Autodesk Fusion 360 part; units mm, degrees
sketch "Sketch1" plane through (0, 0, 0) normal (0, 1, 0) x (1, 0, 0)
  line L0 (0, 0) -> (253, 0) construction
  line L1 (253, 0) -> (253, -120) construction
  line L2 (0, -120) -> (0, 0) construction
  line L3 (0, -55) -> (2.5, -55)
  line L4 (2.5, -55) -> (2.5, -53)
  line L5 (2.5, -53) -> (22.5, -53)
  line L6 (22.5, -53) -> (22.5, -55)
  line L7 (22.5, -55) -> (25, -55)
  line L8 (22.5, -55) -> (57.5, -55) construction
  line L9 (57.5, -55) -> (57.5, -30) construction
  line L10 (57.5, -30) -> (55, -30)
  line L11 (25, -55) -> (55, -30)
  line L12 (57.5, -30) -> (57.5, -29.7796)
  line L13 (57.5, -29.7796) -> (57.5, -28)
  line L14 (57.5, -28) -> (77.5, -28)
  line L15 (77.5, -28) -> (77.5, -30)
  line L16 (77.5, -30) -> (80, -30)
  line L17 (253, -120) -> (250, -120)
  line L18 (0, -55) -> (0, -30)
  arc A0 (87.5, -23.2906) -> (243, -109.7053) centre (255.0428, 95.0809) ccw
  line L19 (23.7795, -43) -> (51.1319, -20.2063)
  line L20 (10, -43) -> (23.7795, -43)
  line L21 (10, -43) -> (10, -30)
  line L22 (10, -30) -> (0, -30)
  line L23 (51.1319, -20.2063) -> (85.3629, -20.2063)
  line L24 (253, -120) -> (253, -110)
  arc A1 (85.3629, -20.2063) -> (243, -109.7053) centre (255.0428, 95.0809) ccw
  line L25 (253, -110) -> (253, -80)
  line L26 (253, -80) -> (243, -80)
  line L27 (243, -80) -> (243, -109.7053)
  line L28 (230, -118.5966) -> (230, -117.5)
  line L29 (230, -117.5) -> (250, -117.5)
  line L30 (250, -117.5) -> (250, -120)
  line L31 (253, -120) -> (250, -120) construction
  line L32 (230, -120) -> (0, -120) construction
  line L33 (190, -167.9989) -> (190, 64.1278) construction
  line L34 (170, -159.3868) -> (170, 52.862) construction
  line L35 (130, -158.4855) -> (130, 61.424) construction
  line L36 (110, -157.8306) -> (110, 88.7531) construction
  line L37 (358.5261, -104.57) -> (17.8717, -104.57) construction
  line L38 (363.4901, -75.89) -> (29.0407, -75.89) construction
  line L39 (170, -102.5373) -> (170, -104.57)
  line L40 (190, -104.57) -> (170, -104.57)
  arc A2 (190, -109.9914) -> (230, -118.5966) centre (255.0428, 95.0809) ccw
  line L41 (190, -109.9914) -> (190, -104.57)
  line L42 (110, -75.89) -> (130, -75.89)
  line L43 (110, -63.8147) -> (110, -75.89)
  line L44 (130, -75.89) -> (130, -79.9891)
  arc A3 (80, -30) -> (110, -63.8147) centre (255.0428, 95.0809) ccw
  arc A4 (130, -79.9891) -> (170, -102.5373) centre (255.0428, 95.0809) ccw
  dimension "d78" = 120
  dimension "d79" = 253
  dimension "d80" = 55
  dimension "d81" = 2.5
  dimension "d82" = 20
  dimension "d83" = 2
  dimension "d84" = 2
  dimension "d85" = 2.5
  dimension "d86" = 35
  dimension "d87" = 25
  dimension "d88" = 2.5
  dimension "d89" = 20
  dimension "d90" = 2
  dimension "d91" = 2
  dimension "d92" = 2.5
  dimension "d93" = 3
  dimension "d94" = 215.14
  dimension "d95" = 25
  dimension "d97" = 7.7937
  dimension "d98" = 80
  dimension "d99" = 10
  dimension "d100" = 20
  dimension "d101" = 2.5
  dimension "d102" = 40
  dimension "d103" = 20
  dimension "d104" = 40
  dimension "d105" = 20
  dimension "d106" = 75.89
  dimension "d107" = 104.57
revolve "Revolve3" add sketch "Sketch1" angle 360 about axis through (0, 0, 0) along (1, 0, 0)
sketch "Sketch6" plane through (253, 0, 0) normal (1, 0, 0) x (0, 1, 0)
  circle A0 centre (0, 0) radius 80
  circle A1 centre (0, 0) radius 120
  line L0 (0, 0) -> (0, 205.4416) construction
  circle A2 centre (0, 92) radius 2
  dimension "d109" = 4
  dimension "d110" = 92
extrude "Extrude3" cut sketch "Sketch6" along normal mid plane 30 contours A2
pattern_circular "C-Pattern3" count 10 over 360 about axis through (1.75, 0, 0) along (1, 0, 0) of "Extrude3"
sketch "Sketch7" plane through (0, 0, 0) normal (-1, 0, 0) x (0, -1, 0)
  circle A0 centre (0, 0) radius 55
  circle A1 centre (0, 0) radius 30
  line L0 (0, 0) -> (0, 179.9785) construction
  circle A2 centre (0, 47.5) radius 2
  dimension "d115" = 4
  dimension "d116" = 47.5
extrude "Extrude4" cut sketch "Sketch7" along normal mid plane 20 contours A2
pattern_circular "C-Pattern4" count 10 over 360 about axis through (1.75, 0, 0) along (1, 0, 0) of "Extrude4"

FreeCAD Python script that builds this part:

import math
import FreeCAD as App
import Part
import Sketcher

doc = App.newDocument("Part")
body = doc.addObject("PartDesign::Body", "Body")

# Sketch on XZ plane
sketch1 = body.newObject("Sketcher::SketchObject", "Sketch")
sketch1.AttachmentSupport = (doc.getObject("XZ_Plane"), [""])
sketch1.MapMode = "FlatFace"
sketch1.addGeometry(Part.LineSegment(App.Vector(0, 30, 0), App.Vector(0, 55, 0)), False)
sketch1.addGeometry(Part.LineSegment(App.Vector(0, 55, 0), App.Vector(2.5, 55, 0)), False)
sketch1.addGeometry(Part.LineSegment(App.Vector(2.5, 55, 0), App.Vector(2.5, 53, 0)), False)
sketch1.addGeometry(Part.LineSegment(App.Vector(2.5, 53, 0), App.Vector(22.5, 53, 0)), False)
sketch1.addGeometry(Part.LineSegment(App.Vector(22.5, 53, 0), App.Vector(22.5, 55, 0)), False)
sketch1.addGeometry(Part.LineSegment(App.Vector(22.5, 55, 0), App.Vector(25, 55, 0)), False)
sketch1.addGeometry(Part.LineSegment(App.Vector(25, 55, 0), App.Vector(55, 30, 0)), False)
sketch1.addGeometry(Part.LineSegment(App.Vector(55, 30, 0), App.Vector(57.5, 30, 0)), False)
sketch1.addGeometry(Part.LineSegment(App.Vector(57.5, 30, 0), App.Vector(57.5, 28, 0)), False)
sketch1.addGeometry(Part.LineSegment(App.Vector(57.5, 28, 0), App.Vector(77.5, 28, 0)), False)
sketch1.addGeometry(Part.LineSegment(App.Vector(77.5, 28, 0), App.Vector(77.5, 30, 0)), False)
sketch1.addGeometry(Part.LineSegment(App.Vector(77.5, 30, 0), App.Vector(80, 30, 0)), False)
sketch1.addGeometry(Part.ArcOfCircle(Part.Circle(App.Vector(255, -95.1, 0), App.Vector(0, 0, 1), 215.1), math.radians(132.39), math.radians(144.45)), False)
sketch1.addGeometry(Part.LineSegment(App.Vector(110, 63.8, 0), App.Vector(110, 75.9, 0)), False)
sketch1.addGeometry(Part.LineSegment(App.Vector(110, 75.9, 0), App.Vector(130, 75.9, 0)), False)
sketch1.addGeometry(Part.LineSegment(App.Vector(130, 75.9, 0), App.Vector(130, 80, 0)), False)
sketch1.addGeometry(Part.ArcOfCircle(Part.Circle(App.Vector(255, -95.1, 0), App.Vector(0, 0, 1), 215.1), math.radians(113.28), math.radians(125.54)), False)
sketch1.addGeometry(Part.LineSegment(App.Vector(170, 102.5, 0), App.Vector(170, 104.6, 0)), False)
sketch1.addGeometry(Part.LineSegment(App.Vector(170, 104.6, 0), App.Vector(190, 104.6, 0)), False)
sketch1.addGeometry(Part.LineSegment(App.Vector(190, 104.6, 0), App.Vector(190, 110, 0)), False)
sketch1.addGeometry(Part.ArcOfCircle(Part.Circle(App.Vector(255, -95.1, 0), App.Vector(0, 0, 1), 215.1), math.radians(96.68), math.radians(107.6)), False)
sketch1.addGeometry(Part.LineSegment(App.Vector(230, 118.6, 0), App.Vector(230, 117.5, 0)), False)
sketch1.addGeometry(Part.LineSegment(App.Vector(230, 117.5, 0), App.Vector(250, 117.5, 0)), False)
sketch1.addGeometry(Part.LineSegment(App.Vector(250, 117.5, 0), App.Vector(250, 120, 0)), False)
sketch1.addGeometry(Part.LineSegment(App.Vector(250, 120, 0), App.Vector(253, 120, 0)), False)
sketch1.addGeometry(Part.LineSegment(App.Vector(253, 120, 0), App.Vector(253, 80, 0)), False)
sketch1.addGeometry(Part.LineSegment(App.Vector(253, 80, 0), App.Vector(243, 80, 0)), False)
sketch1.addGeometry(Part.LineSegment(App.Vector(243, 80, 0), App.Vector(243, 109.7, 0)), False)
sketch1.addGeometry(Part.ArcOfCircle(Part.Circle(App.Vector(255, -95.1, 0), App.Vector(0, 0, 1), 205.1), math.radians(93), math.radians(145)), False)
sketch1.addGeometry(Part.ArcOfCircle(Part.Circle(App.Vector(255, -95.1, 0), App.Vector(0, 0, 1), 205.1), math.radians(144.76), math.radians(145.81)), False)
sketch1.addGeometry(Part.LineSegment(App.Vector(85.4, 20.2, 0), App.Vector(51.1, 20.2, 0)), False)
sketch1.addGeometry(Part.LineSegment(App.Vector(51.1, 20.2, 0), App.Vector(23.8, 43, 0)), False)
sketch1.addGeometry(Part.LineSegment(App.Vector(23.8, 43, 0), App.Vector(10, 43, 0)), False)
sketch1.addGeometry(Part.LineSegment(App.Vector(10, 43, 0), App.Vector(10, 30, 0)), False)
sketch1.addGeometry(Part.LineSegment(App.Vector(10, 30, 0), App.Vector(0, 30, 0)), False)
sketch1.addConstraint(Sketcher.Constraint("Coincident", 0, 2, 1, 1))
sketch1.addConstraint(Sketcher.Constraint("Coincident", 1, 2, 2, 1))
sketch1.addConstraint(Sketcher.Constraint("Coincident", 2, 2, 3, 1))
sketch1.addConstraint(Sketcher.Constraint("Coincident", 3, 2, 4, 1))
sketch1.addConstraint(Sketcher.Constraint("Coincident", 4, 2, 5, 1))
sketch1.addConstraint(Sketcher.Constraint("Coincident", 5, 2, 6, 1))
sketch1.addConstraint(Sketcher.Constraint("Coincident", 6, 2, 7, 1))
sketch1.addConstraint(Sketcher.Constraint("Coincident", 7, 2, 8, 1))
sketch1.addConstraint(Sketcher.Constraint("Coincident", 8, 2, 9, 1))
sketch1.addConstraint(Sketcher.Constraint("Coincident", 9, 2, 10, 1))
sketch1.addConstraint(Sketcher.Constraint("Coincident", 10, 2, 11, 1))
sketch1.addConstraint(Sketcher.Constraint("Coincident", 11, 2, 12, 2))
sketch1.addConstraint(Sketcher.Constraint("Coincident", 12, 1, 13, 1))
sketch1.addConstraint(Sketcher.Constraint("Coincident", 13, 2, 14, 1))
sketch1.addConstraint(Sketcher.Constraint("Coincident", 14, 2, 15, 1))
sketch1.addConstraint(Sketcher.Constraint("Coincident", 15, 2, 16, 2))
sketch1.addConstraint(Sketcher.Constraint("Coincident", 16, 1, 17, 1))
sketch1.addConstraint(Sketcher.Constraint("Coincident", 17, 2, 18, 1))
sketch1.addConstraint(Sketcher.Constraint("Coincident", 18, 2, 19, 1))
sketch1.addConstraint(Sketcher.Constraint("Coincident", 19, 2, 20, 2))
sketch1.addConstraint(Sketcher.Constraint("Coincident", 20, 1, 21, 1))
sketch1.addConstraint(Sketcher.Constraint("Coincident", 21, 2, 22, 1))
sketch1.addConstraint(Sketcher.Constraint("Coincident", 22, 2, 23, 1))
sketch1.addConstraint(Sketcher.Constraint("Coincident", 23, 2, 24, 1))
sketch1.addConstraint(Sketcher.Constraint("Coincident", 24, 2, 25, 1))
sketch1.addConstraint(Sketcher.Constraint("Coincident", 25, 2, 26, 1))
sketch1.addConstraint(Sketcher.Constraint("Coincident", 26, 2, 27, 1))
sketch1.addConstraint(Sketcher.Constraint("Coincident", 27, 2, 28, 1))
sketch1.addConstraint(Sketcher.Constraint("Tangent", 28, 2, 29, 1))
sketch1.addConstraint(Sketcher.Constraint("Coincident", 29, 2, 30, 1))
sketch1.addConstraint(Sketcher.Constraint("Coincident", 30, 2, 31, 1))
sketch1.addConstraint(Sketcher.Constraint("Coincident", 31, 2, 32, 1))
sketch1.addConstraint(Sketcher.Constraint("Coincident", 32, 2, 33, 1))
sketch1.addConstraint(Sketcher.Constraint("Coincident", 33, 2, 34, 1))
sketch1.addConstraint(Sketcher.Constraint("Coincident", 34, 2, 0, 1))
sketch1.addConstraint(Sketcher.Constraint("Vertical", 0))
sketch1.addConstraint(Sketcher.Constraint("Horizontal", 1))
sketch1.addConstraint(Sketcher.Constraint("Vertical", 2))
sketch1.addConstraint(Sketcher.Constraint("Horizontal", 3))
sketch1.addConstraint(Sketcher.Constraint("Vertical", 4))
sketch1.addConstraint(Sketcher.Constraint("Horizontal", 5))
sketch1.addConstraint(Sketcher.Constraint("Horizontal", 7))
sketch1.addConstraint(Sketcher.Constraint("Vertical", 8))
sketch1.addConstraint(Sketcher.Constraint("Horizontal", 9))
sketch1.addConstraint(Sketcher.Constraint("Vertical", 10))
sketch1.addConstraint(Sketcher.Constraint("Horizontal", 11))
sketch1.addConstraint(Sketcher.Constraint("Vertical", 13))
sketch1.addConstraint(Sketcher.Constraint("Horizontal", 14))
sketch1.addConstraint(Sketcher.Constraint("Vertical", 15))
sketch1.addConstraint(Sketcher.Constraint("Vertical", 17))
sketch1.addConstraint(Sketcher.Constraint("Horizontal", 18))
sketch1.addConstraint(Sketcher.Constraint("Vertical", 19))
sketch1.addConstraint(Sketcher.Constraint("Vertical", 21))
sketch1.addConstraint(Sketcher.Constraint("Horizontal", 22))
sketch1.addConstraint(Sketcher.Constraint("Vertical", 23))
sketch1.addConstraint(Sketcher.Constraint("Horizontal", 24))
sketch1.addConstraint(Sketcher.Constraint("Vertical", 25))
sketch1.addConstraint(Sketcher.Constraint("Horizontal", 26))
sketch1.addConstraint(Sketcher.Constraint("Vertical", 27))
sketch1.addConstraint(Sketcher.Constraint("Horizontal", 30))
sketch1.addConstraint(Sketcher.Constraint("Horizontal", 32))
sketch1.addConstraint(Sketcher.Constraint("Vertical", 33))
sketch1.addConstraint(Sketcher.Constraint("Horizontal", 34))
sketch1.addConstraint(Sketcher.Constraint("Coincident", 28, 3, 20, 3))
sketch1.addConstraint(Sketcher.Constraint("Equal", 28, 29))
sketch1.addConstraint(Sketcher.Constraint("PointOnObject", 0, 2, -2))
sketch1.addConstraint(Sketcher.Constraint("Parallel", 6, 31))
sketch1.addConstraint(Sketcher.Constraint("Horizontal", 1, 2, 4, 2))
sketch1.addConstraint(Sketcher.Constraint("Horizontal", 7, 2, 10, 2))
sketch1.addConstraint(Sketcher.Constraint("Horizontal", 11, 2, 33, 2))
sketch1.addConstraint(Sketcher.Constraint("Equal", 1, 5))
sketch1.addConstraint(Sketcher.Constraint("Equal", 5, 7))
sketch1.addConstraint(Sketcher.Constraint("Equal", 3, 9))
sketch1.addConstraint(Sketcher.Constraint("Equal", 7, 11))
sketch1.addConstraint(Sketcher.Constraint("Equal", 9, 14))
sketch1.addConstraint(Sketcher.Constraint("Equal", 14, 18))
sketch1.addConstraint(Sketcher.Constraint("Equal", 18, 22))
sketch1.addConstraint(Sketcher.Constraint("Equal", 26, 34))
sketch1.addConstraint(Sketcher.Constraint("Equal", 4, 8))
sketch1.addConstraint(Sketcher.Constraint("Equal", 11, 23))
sketch1.addConstraint(Sketcher.Constraint("DistanceX", 3, 1, 3, 2, 20.0))
sketch1.addConstraint(Sketcher.Constraint("DistanceX", 24, 1, 24, 2, 3.0))
sketch1.addConstraint(Sketcher.Constraint("DistanceX", 26, 2, 26, 1, 10.0))
sketch1.addConstraint(Sketcher.Constraint("DistanceY", 0, 1, 0, 2, 25.0))
sketch1.addConstraint(Sketcher.Constraint("DistanceY", 2, 2, 2, 1, 2.0))
sketch1.addConstraint(Sketcher.Constraint("DistanceY", 25, 2, 25, 1, 40.0))
sketch1.addConstraint(Sketcher.Constraint("Radius", 20, 215.14))
sketch1.addConstraint(Sketcher.Constraint("DistanceX", 1, 1, 1, 2, 2.5))
sketch1.addConstraint(Sketcher.Constraint("DistanceY", -1, 1, 0, 2, 55.0))
sketch1.addConstraint(Sketcher.Constraint("DistanceX", -1, 1, 6, 2, 55.0))
sketch1.addConstraint(Sketcher.Constraint("DistanceY", -1, 1, 23, 2, 120.0))
sketch1.addConstraint(Sketcher.Constraint("DistanceX", -1, 1, 24, 2, 253.0))
sketch1.addConstraint(Sketcher.Constraint("DistanceX", 15, 2, 16, 1, 40.0))
sketch1.addConstraint(Sketcher.Constraint("DistanceX", 19, 2, 21, 2, 40.0))
sketch1.addConstraint(Sketcher.Constraint("DistanceX", 9, 2, 28, 2, 10.0))
sketch1.addConstraint(Sketcher.Constraint("DistanceY", 31, 2, 3, 2, 10.0))
sketch1.addConstraint(Sketcher.Constraint("DistanceY", -1, 1, 13, 2, 75.89))
sketch1.addConstraint(Sketcher.Constraint("DistanceY", -1, 1, 17, 2, 104.57))
sketch1.addConstraint(Sketcher.Constraint("Radius", 28, 205.14))
sketch1.addConstraint(Sketcher.Constraint("Radius", 12, 215.1425))
sketch1.addConstraint(Sketcher.Constraint("Radius", 16, 215.1449))
sketch1.addConstraint(Sketcher.Constraint("DistanceY", 29, 2, 9, 2, 7.7937))
sketch1.addConstraint(Sketcher.Constraint("DistanceX", 30, 2, 30, 1, 34.231))
sketch1.addConstraint(Sketcher.Constraint("DistanceY", 15, 1, 15, 2, 4.099))
sketch1.addConstraint(Sketcher.Constraint("DistanceX", 32, 2, 32, 1, 13.7795))
sketch1.addConstraint(Sketcher.Constraint("DistanceY", 13, 1, 13, 2, 12.0753))
sketch1.addConstraint(Sketcher.Constraint("DistanceY", 17, 1, 17, 2, 2.0327))
sketch1.addConstraint(Sketcher.Constraint("DistanceY", 19, 1, 19, 2, 5.4214))
revolution = body.newObject("PartDesign::Revolution", "Revolution")
revolution.Profile = sketch1
revolution.ReferenceAxis = (sketch1, ["H_Axis"])
revolution.Angle = 360

# Sketch on YZ plane
sketch2 = body.newObject("Sketcher::SketchObject", "Sketch001")
sketch2.AttachmentSupport = (doc.getObject("YZ_Plane"), [""])
sketch2.MapMode = "FlatFace"
sketch2.AttachmentOffset = App.Placement(App.Vector(0, 0, 253), App.Rotation())
sketch2.addGeometry(Part.Circle(App.Vector(0, 92, 0), App.Vector(0, 0, 1), 2), False)
sketch2.addConstraint(Sketcher.Constraint("PointOnObject", 0, 3, -2))
sketch2.addConstraint(Sketcher.Constraint("Diameter", 0, 4.0))
sketch2.addConstraint(Sketcher.Constraint("DistanceY", -1, 1, 0, 3, 92.0))
pocket1 = body.newObject("PartDesign::Pocket", "Pocket")
pocket1.Profile = sketch2
pocket1.Length = 30
pocket1.Midplane = True
doc.recompute()

polarpattern = body.newObject("PartDesign::PolarPattern", "PolarPattern")
polarpattern.Originals = [pocket1]
polarpattern.Axis = (doc.getObject("X_Axis"), [""])
polarpattern.Angle = 360
polarpattern.Occurrences = 10
body.Tip = polarpattern

# Sketch on YZ plane
sketch3 = body.newObject("Sketcher::SketchObject", "Sketch002")
sketch3.AttachmentSupport = (doc.getObject("YZ_Plane"), [""])
sketch3.MapMode = "FlatFace"
sketch3.addGeometry(Part.Circle(App.Vector(0, 47.5, 0), App.Vector(0, 0, 1), 2), False)
sketch3.addConstraint(Sketcher.Constraint("PointOnObject", 0, 3, -2))
sketch3.addConstraint(Sketcher.Constraint("Diameter", 0, 4.0))
sketch3.addConstraint(Sketcher.Constraint("DistanceY", -1, 1, 0, 3, 47.5))
pocket2 = body.newObject("PartDesign::Pocket", "Pocket001")
pocket2.Profile = sketch3
pocket2.Length = 20
pocket2.Midplane = True
doc.recompute()

polarpattern2 = body.newObject("PartDesign::PolarPattern", "PolarPattern001")
polarpattern2.Originals = [pocket2]
polarpattern2.Axis = (doc.getObject("X_Axis"), [""])
polarpattern2.Angle = 360
polarpattern2.Occurrences = 10
body.Tip = polarpattern2

doc.recompute()
